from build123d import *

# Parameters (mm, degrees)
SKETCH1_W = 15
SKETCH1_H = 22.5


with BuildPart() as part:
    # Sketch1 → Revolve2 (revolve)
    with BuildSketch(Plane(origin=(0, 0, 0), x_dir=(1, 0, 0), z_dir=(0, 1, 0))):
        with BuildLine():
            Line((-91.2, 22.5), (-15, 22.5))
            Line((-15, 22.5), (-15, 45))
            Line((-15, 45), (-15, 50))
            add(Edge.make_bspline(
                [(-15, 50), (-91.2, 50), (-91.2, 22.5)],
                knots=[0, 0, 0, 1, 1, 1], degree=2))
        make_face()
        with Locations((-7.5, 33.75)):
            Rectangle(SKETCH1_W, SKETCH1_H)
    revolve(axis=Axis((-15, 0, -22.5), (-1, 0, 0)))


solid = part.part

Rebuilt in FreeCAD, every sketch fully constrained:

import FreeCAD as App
import Part
import Sketcher
Q = App.Units.Quantity

doc = App.newDocument("Part")
body = doc.addObject("PartDesign::Body", "Body")

# Sketch on XZ plane
sketch1 = body.newObject("Sketcher::SketchObject", "Sketch")
sketch1.AttachmentSupport = (doc.getObject("XZ_Plane"), [""])
sketch1.MapMode = "FlatFace"
sketch1.addGeometry([
    Part.LineSegment(App.Vector(-91.2, -22.5, 0), App.Vector(0, -22.5, 0)),  # 0
    Part.LineSegment(App.Vector(0, -22.5, 0), App.Vector(0, -45, 0)),  # 1
    Part.LineSegment(App.Vector(0, -45, 0), App.Vector(-15, -45, 0)),  # 2
    Part.LineSegment(App.Vector(-15, -45, 0), App.Vector(-15, -50, 0)),  # 3
    Part.BSplineCurve([App.Vector(-15, -50, 0), App.Vector(-91.2, -50, 0), App.Vector(-91.2, -22.5, 0)], [3, 3], [0, 1], False, 2, [1, 1, 1], False),  # 4
], False)
sketch1.addGeometry(Part.LineSegment(App.Vector(0, -22.5, 0), App.Vector(-91.2, -22.5, 0)), True)  # axis
sketch1.addConstraint([
    Sketcher.Constraint("Block", 4),
    Sketcher.Constraint("Coincident", 0, 2, 1, 1),
    Sketcher.Constraint("Coincident", 1, 2, 2, 1),
    Sketcher.Constraint("Coincident", 2, 2, 3, 1),
    Sketcher.Constraint("Coincident", 3, 2, 4, 1),
    Sketcher.Constraint("Coincident", 4, 2, 0, 1),
    Sketcher.Constraint("Horizontal", 0),
    Sketcher.Constraint("Vertical", 1),
    Sketcher.Constraint("Horizontal", 2),
    Sketcher.Constraint("Vertical", 3),
    Sketcher.Constraint("Horizontal", 5),
    Sketcher.Constraint("Coincident", 5, 1, 0, 2),
    Sketcher.Constraint("PointOnObject", 0, 2, -2),
    Sketcher.Constraint("Equal", 0, 5),
    Sketcher.Constraint("DistanceY", 3, 2, 3, 1, Q("5 mm")),
])
revolution = body.newObject("PartDesign::Revolution", "Revolution")
revolution.Profile = sketch1
revolution.ReferenceAxis = (sketch1, ["Axis0"])
revolution.Angle = 360

doc.recompute()
